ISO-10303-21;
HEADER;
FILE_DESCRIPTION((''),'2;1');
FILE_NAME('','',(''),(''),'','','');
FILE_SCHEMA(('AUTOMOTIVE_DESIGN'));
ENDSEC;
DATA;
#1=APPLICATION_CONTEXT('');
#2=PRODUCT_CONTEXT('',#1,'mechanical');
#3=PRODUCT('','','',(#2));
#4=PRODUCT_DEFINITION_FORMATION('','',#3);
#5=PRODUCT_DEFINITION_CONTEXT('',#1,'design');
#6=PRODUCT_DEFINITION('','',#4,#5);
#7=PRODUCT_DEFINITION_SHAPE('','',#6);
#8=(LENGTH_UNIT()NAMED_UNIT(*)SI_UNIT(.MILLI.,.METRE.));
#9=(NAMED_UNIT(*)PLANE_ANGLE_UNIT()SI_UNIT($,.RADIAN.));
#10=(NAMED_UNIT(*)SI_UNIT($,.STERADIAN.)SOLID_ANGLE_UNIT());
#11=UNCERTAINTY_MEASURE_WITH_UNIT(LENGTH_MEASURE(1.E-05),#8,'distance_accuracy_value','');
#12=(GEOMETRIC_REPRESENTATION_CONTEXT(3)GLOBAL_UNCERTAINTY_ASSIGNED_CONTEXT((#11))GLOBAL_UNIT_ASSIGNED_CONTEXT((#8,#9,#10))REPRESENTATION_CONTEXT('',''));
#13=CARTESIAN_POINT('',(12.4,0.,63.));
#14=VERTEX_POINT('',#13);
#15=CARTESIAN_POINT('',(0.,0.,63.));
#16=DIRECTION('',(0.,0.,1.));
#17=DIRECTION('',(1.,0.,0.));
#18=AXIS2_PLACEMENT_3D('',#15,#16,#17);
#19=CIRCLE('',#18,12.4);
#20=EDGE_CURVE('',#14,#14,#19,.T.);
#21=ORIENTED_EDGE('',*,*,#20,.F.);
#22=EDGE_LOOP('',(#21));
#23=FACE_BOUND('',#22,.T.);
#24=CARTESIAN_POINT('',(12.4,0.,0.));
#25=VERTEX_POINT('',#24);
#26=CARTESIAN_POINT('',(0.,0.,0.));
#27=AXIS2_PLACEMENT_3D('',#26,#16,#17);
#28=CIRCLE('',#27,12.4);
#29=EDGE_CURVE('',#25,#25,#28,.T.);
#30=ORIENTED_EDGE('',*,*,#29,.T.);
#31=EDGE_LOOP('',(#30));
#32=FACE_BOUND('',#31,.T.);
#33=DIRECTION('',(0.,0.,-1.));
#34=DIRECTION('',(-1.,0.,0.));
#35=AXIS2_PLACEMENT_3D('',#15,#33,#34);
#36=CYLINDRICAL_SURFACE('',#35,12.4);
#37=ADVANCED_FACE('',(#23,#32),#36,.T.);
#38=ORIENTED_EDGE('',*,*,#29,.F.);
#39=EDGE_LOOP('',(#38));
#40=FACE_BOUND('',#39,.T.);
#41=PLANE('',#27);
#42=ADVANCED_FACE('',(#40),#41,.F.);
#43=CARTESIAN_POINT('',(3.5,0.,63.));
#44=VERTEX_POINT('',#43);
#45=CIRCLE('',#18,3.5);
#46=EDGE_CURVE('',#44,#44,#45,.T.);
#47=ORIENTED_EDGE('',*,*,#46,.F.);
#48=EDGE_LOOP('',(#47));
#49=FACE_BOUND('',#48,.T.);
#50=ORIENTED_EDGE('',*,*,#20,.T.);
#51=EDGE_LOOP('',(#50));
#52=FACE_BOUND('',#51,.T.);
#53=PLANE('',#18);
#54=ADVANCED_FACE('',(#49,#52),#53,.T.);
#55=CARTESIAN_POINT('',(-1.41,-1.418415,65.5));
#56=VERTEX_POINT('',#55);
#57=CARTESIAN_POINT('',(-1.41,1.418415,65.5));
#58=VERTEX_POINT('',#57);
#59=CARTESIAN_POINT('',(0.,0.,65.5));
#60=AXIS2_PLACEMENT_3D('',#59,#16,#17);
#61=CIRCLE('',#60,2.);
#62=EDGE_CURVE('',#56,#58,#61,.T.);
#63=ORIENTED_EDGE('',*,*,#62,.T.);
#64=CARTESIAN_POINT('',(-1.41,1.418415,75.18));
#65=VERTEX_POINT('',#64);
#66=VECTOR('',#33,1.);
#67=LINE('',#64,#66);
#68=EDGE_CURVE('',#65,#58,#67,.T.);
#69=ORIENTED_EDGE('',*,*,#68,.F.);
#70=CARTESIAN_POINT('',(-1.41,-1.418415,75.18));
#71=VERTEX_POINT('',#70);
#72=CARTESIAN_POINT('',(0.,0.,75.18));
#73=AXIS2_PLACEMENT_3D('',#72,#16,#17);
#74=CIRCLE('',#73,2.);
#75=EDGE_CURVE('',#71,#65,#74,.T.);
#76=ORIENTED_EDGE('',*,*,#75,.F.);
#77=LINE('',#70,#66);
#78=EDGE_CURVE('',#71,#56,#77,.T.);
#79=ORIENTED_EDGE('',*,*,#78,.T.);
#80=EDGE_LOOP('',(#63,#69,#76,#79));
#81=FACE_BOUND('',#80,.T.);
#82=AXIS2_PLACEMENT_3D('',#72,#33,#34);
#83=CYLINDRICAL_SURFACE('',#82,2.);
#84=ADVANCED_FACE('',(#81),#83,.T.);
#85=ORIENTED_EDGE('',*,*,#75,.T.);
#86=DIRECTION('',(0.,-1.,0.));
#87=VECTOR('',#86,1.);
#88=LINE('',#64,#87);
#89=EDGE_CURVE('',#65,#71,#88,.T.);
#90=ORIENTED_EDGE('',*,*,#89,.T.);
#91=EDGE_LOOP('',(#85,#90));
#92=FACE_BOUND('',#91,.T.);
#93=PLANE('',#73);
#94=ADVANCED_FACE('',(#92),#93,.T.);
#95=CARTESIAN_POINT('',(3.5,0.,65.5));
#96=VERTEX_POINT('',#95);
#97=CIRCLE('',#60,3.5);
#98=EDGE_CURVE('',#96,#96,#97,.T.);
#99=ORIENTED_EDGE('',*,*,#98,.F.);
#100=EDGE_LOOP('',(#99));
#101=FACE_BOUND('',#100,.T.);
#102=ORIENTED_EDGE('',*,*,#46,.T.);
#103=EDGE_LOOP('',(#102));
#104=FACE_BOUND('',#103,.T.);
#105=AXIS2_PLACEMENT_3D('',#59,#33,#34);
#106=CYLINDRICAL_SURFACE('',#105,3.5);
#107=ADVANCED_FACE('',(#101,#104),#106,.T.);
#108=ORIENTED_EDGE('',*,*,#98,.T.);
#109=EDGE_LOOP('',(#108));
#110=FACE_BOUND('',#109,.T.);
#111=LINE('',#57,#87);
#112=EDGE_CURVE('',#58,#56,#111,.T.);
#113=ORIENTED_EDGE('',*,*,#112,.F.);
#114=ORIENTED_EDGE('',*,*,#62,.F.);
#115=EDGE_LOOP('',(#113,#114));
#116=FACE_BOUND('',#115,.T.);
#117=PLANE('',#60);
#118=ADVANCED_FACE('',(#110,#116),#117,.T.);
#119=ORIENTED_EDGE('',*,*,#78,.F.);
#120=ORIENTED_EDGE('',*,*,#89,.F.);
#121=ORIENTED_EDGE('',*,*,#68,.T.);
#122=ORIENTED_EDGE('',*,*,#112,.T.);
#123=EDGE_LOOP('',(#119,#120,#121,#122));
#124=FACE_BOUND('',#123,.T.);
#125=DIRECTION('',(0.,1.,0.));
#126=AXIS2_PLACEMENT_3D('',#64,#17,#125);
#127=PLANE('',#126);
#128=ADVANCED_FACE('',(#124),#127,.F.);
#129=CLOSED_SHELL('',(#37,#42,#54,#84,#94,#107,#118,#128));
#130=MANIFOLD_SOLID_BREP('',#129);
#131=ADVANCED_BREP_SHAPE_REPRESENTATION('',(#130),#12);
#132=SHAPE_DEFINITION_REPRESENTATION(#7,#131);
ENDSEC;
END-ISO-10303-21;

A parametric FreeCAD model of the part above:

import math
import FreeCAD as App
import Part
import Sketcher
from FreeCAD import Vector

doc = App.newDocument("Part")
body = doc.addObject("PartDesign::Body", "Body")

# Sketch on XY plane
sketch1 = body.newObject("Sketcher::SketchObject", "Sketch")
sketch1.AttachmentSupport = (doc.getObject("XY_Plane"), [""])
sketch1.MapMode = "FlatFace"
sketch1.addGeometry(Part.Circle(Vector(0, 0, 0), Vector(0, 0, 1), 12.4), False)
sketch1.addConstraint(Sketcher.Constraint("Coincident", 0, 3, -1, 1))
sketch1.addConstraint(Sketcher.Constraint("Diameter", 0, 24.8))
pad1 = body.newObject("PartDesign::Pad", "Pad")
pad1.Profile = sketch1
pad1.Length = 63

# Sketch on XY plane
sketch2 = body.newObject("Sketcher::SketchObject", "Sketch001")
sketch2.AttachmentSupport = (doc.getObject("XY_Plane"), [""])
sketch2.MapMode = "FlatFace"
sketch2.AttachmentOffset = App.Placement(Vector(0, 0, 63), App.Rotation())
sketch2.addGeometry(Part.Circle(Vector(0, 0, 0), Vector(0, 0, 1), 3.5), False)
sketch2.addConstraint(Sketcher.Constraint("Coincident", 0, 3, -1, 1))
sketch2.addConstraint(Sketcher.Constraint("Diameter", 0, 7.0))
pad2 = body.newObject("PartDesign::Pad", "Pad001")
pad2.Profile = sketch2
pad2.Length = 2.5

# Sketch on XY plane
sketch3 = body.newObject("Sketcher::SketchObject", "Sketch002")
sketch3.AttachmentSupport = (doc.getObject("XY_Plane"), [""])
sketch3.MapMode = "FlatFace"
sketch3.AttachmentOffset = App.Placement(Vector(0, 0, 65.5), App.Rotation())
sketch3.addGeometry(Part.LineSegment(Vector(-1.41, 1.418415, 0), Vector(-1.41, -1.418415, 0)), False)
sketch3.addGeometry(Part.ArcOfCircle(Part.Circle(Vector(0, 0, 0), Vector(0, 0, 1), 2), math.radians(-134.829544), math.radians(134.829544)), False)
sketch3.addConstraint(Sketcher.Constraint("Coincident", 0, 1, 1, 2))
sketch3.addConstraint(Sketcher.Constraint("Coincident", 1, 1, 0, 2))
sketch3.addConstraint(Sketcher.Constraint("Vertical", 0))
sketch3.addConstraint(Sketcher.Constraint("Coincident", 1, 3, -1, 1))
sketch3.addConstraint(Sketcher.Constraint("Radius", 1, 2.0))
sketch3.addConstraint(Sketcher.Constraint("DistanceX", 0, 1, -1, 1, 1.41))
pad3 = body.newObject("PartDesign::Pad", "Pad002")
pad3.Profile = sketch3
pad3.Length = 9.68

doc.recompute()
